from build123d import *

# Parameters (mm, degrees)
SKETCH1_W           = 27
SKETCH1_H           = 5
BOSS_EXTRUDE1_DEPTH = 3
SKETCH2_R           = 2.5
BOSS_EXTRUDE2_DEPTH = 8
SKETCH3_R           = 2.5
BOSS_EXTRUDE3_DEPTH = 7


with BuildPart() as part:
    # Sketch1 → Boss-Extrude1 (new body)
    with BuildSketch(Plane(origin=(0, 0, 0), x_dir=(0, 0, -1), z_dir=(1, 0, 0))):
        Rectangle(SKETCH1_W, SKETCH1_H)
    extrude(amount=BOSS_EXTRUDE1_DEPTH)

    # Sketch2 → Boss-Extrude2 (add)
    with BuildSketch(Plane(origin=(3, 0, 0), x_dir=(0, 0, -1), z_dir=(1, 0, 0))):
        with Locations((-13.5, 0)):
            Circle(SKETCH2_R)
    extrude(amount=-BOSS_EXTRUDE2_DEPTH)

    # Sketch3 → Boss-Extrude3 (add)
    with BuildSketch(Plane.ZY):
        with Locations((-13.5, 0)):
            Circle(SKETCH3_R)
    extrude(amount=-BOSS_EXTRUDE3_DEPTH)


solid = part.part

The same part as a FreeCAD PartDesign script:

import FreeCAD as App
import Part
import Sketcher
Q = App.Units.Quantity


def add_polygon(sketch, points):
    """Adds a closed chain of lines whose ends are joined by coincident constraints."""
    first, n = sketch.GeometryCount, len(points)
    for a, b in zip(points, points[1:] + points[:1]):
        sketch.addGeometry(Part.LineSegment(App.Vector(*a, 0), App.Vector(*b, 0)), False)
    for i in range(n):
        sketch.addConstraint(Sketcher.Constraint("Coincident", first + i, 2, first + (i + 1) % n, 1))

doc = App.newDocument("Part")
body = doc.addObject("PartDesign::Body", "Body")

# Sketch on YZ plane
sketch1 = body.newObject("Sketcher::SketchObject", "Sketch")
sketch1.AttachmentSupport = (doc.getObject("YZ_Plane"), [""])
sketch1.MapMode = "FlatFace"
add_polygon(sketch1, [(2, 14), (-2, 14), (-2, -14), (2, -14)])  # lines 0-3
sketch1.addConstraint([
    Sketcher.Constraint("Horizontal", 0),
    Sketcher.Constraint("Vertical", 1),
    Sketcher.Constraint("Horizontal", 2),
    Sketcher.Constraint("Vertical", 3),
    Sketcher.Constraint("Symmetric", 0, 2, 2, 2, -1, 1),
    Sketcher.Constraint("DistanceX", 0, 2, 0, 1, Q("5 mm")),
    Sketcher.Constraint("DistanceY", 1, 2, 1, 1, Q("27 mm")),
])
pad1 = body.newObject("PartDesign::Pad", "Pad")
pad1.Profile = sketch1
pad1.Length = 3

# Sketch on YZ plane
sketch2 = body.newObject("Sketcher::SketchObject", "Sketch001")
sketch2.AttachmentSupport = (doc.getObject("YZ_Plane"), [""])
sketch2.MapMode = "FlatFace"
sketch2.AttachmentOffset = App.Placement(App.Vector(0, 0, 3), App.Rotation())
sketch2.addGeometry(Part.Circle(App.Vector(0, 13.5, 0), App.Vector(0, 0, 1), 2.5), False)
sketch2.addConstraint([
    Sketcher.Constraint("PointOnObject", 0, 3, -2),
    Sketcher.Constraint("Diameter", 0, Q("5 mm")),
    Sketcher.Constraint("DistanceY", -1, 1, 0, 3, Q("13.5 mm")),
])
pad2 = body.newObject("PartDesign::Pad", "Pad001")
pad2.Profile = sketch2
pad2.Length = 8
pad2.Reversed = True

# Sketch on YZ plane
sketch3 = body.newObject("Sketcher::SketchObject", "Sketch002")
sketch3.AttachmentSupport = (doc.getObject("YZ_Plane"), [""])
sketch3.MapMode = "FlatFace"
sketch3.addGeometry(Part.Circle(App.Vector(0, -13.5, 0), App.Vector(0, 0, 1), 2.5), False)
sketch3.addConstraint([
    Sketcher.Constraint("PointOnObject", 0, 3, -2),
    Sketcher.Constraint("Diameter", 0, Q("5 mm")),
    Sketcher.Constraint("DistanceY", 0, 3, -1, 1, Q("13.5 mm")),
])
pad3 = body.newObject("PartDesign::Pad", "Pad002")
pad3.Profile = sketch3
pad3.Length = 7

doc.recompute()
